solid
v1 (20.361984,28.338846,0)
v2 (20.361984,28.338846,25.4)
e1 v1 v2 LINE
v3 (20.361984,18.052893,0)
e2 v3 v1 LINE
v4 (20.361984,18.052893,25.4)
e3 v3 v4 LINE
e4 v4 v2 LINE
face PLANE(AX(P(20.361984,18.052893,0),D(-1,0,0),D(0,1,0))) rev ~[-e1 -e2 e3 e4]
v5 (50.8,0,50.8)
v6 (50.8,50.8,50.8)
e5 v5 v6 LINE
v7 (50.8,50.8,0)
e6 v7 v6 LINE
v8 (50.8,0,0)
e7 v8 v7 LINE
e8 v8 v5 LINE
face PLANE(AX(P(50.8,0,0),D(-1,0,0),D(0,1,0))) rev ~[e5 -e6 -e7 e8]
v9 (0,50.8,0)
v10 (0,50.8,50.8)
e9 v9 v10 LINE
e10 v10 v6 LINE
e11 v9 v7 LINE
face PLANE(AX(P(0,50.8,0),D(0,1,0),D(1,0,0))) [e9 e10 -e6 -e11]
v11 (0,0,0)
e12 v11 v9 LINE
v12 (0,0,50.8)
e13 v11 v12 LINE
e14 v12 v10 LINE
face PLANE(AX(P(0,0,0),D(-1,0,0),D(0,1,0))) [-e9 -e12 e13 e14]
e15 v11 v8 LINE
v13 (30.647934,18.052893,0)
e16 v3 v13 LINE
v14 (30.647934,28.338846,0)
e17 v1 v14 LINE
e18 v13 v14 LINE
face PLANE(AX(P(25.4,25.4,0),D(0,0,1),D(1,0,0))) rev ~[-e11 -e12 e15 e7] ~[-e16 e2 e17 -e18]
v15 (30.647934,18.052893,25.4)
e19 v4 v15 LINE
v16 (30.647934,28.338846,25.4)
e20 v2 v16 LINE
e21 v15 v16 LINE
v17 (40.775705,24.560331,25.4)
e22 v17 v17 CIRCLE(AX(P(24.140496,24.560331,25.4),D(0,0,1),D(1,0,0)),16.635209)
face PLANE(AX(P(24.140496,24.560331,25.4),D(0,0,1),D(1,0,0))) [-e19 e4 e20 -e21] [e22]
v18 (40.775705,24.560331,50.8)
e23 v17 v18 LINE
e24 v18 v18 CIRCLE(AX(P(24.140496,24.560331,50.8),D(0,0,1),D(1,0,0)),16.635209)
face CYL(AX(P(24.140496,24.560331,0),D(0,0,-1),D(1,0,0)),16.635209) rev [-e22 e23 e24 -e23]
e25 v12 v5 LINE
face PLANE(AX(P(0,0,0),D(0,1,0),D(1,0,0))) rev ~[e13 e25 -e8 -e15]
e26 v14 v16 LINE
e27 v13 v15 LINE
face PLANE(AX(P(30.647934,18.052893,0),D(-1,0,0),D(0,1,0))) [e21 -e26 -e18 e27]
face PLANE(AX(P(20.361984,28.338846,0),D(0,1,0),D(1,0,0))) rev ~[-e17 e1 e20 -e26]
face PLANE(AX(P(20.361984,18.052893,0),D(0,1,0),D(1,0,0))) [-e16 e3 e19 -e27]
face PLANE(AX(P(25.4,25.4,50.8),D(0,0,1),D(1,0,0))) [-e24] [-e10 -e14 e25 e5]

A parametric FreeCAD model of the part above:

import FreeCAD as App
import Part
import Sketcher

V = App.Vector
Q = App.Units.Quantity


def add_polygon(sketch, points):
    """Adds a closed chain of lines whose ends are joined by coincident constraints."""
    first, n = sketch.GeometryCount, len(points)
    for a, b in zip(points, points[1:] + points[:1]):
        sketch.addGeometry(Part.LineSegment(App.Vector(*a, 0), App.Vector(*b, 0)), False)
    for i in range(n):
        sketch.addConstraint(Sketcher.Constraint("Coincident", first + i, 2, first + (i + 1) % n, 1))

doc = App.newDocument("Part")
body = doc.addObject("PartDesign::Body", "Body")

sketch1 = body.newObject("Sketcher::SketchObject", "Sketch")
sketch1.AttachmentSupport = (doc.getObject("XY_Plane"), [""])
sketch1.MapMode = "FlatFace"
sketch1.addGeometry(Part.Circle(V(24.140496, 24.560331, 0), V(0, 0, 1), 16.635209), False)
add_polygon(sketch1, [(30.647934, 18.052893), (20.361984, 18.052893), (20.361984, 28.338846), (30.647934, 28.338846)])
sketch1.addConstraint([
    Sketcher.Constraint("Horizontal", 1),
    Sketcher.Constraint("Vertical", 2),
    Sketcher.Constraint("Horizontal", 3),
    Sketcher.Constraint("Vertical", 4),
    Sketcher.Constraint("Diameter", 0, Q("33.270418 mm")),
    Sketcher.Constraint("DistanceX", 1, 2, 1, 1, Q("10.285949 mm")),
    Sketcher.Constraint("DistanceY", 2, 1, 2, 2, Q("10.285953 mm")),
    Sketcher.Constraint("DistanceY", -1, 1, 0, 3, Q("24.560331 mm")),
    Sketcher.Constraint("DistanceX", 1, 2, 0, 3, Q("3.778512 mm")),
    Sketcher.Constraint("DistanceX", -1, 1, 0, 3, Q("24.140496 mm")),
    Sketcher.Constraint("DistanceY", -1, 1, 1, 2, Q("18.052893 mm")),
])
pad1 = body.newObject("PartDesign::Pad", "Pad")
pad1.Profile = sketch1
pad1.Length = Q("1 in")

sketch2 = body.newObject("Sketcher::SketchObject", "Sketch001")
sketch2.AttachmentSupport = (doc.getObject("XY_Plane"), [""])
sketch2.MapMode = "FlatFace"
add_polygon(sketch2, [(0, 50.8), (0, 0), (50.8, 0), (50.8, 50.8)])
sketch2.addGeometry(Part.Circle(V(24.140496, 24.560331, 0), V(0, 0, 1), 16.635209), False)
sketch2.addConstraint([
    Sketcher.Constraint("Vertical", 0),
    Sketcher.Constraint("Horizontal", 1),
    Sketcher.Constraint("Vertical", 2),
    Sketcher.Constraint("Horizontal", 3),
    Sketcher.Constraint("Coincident", 0, 2, -1, 1),
    Sketcher.Constraint("Equal", 3, 0),
    Sketcher.Constraint("DistanceX", 1, 1, 1, 2, Q("2 in")),
    Sketcher.Constraint("Diameter", 4, Q("33.270418 mm")),
    Sketcher.Constraint("DistanceY", -1, 1, 4, 3, Q("24.560331 mm")),
    Sketcher.Constraint("DistanceX", -1, 1, 4, 3, Q("24.140496 mm")),
])
pad2 = body.newObject("PartDesign::Pad", "Pad001")
pad2.Profile = sketch2
pad2.Length = Q("2 in")

doc.recompute()
